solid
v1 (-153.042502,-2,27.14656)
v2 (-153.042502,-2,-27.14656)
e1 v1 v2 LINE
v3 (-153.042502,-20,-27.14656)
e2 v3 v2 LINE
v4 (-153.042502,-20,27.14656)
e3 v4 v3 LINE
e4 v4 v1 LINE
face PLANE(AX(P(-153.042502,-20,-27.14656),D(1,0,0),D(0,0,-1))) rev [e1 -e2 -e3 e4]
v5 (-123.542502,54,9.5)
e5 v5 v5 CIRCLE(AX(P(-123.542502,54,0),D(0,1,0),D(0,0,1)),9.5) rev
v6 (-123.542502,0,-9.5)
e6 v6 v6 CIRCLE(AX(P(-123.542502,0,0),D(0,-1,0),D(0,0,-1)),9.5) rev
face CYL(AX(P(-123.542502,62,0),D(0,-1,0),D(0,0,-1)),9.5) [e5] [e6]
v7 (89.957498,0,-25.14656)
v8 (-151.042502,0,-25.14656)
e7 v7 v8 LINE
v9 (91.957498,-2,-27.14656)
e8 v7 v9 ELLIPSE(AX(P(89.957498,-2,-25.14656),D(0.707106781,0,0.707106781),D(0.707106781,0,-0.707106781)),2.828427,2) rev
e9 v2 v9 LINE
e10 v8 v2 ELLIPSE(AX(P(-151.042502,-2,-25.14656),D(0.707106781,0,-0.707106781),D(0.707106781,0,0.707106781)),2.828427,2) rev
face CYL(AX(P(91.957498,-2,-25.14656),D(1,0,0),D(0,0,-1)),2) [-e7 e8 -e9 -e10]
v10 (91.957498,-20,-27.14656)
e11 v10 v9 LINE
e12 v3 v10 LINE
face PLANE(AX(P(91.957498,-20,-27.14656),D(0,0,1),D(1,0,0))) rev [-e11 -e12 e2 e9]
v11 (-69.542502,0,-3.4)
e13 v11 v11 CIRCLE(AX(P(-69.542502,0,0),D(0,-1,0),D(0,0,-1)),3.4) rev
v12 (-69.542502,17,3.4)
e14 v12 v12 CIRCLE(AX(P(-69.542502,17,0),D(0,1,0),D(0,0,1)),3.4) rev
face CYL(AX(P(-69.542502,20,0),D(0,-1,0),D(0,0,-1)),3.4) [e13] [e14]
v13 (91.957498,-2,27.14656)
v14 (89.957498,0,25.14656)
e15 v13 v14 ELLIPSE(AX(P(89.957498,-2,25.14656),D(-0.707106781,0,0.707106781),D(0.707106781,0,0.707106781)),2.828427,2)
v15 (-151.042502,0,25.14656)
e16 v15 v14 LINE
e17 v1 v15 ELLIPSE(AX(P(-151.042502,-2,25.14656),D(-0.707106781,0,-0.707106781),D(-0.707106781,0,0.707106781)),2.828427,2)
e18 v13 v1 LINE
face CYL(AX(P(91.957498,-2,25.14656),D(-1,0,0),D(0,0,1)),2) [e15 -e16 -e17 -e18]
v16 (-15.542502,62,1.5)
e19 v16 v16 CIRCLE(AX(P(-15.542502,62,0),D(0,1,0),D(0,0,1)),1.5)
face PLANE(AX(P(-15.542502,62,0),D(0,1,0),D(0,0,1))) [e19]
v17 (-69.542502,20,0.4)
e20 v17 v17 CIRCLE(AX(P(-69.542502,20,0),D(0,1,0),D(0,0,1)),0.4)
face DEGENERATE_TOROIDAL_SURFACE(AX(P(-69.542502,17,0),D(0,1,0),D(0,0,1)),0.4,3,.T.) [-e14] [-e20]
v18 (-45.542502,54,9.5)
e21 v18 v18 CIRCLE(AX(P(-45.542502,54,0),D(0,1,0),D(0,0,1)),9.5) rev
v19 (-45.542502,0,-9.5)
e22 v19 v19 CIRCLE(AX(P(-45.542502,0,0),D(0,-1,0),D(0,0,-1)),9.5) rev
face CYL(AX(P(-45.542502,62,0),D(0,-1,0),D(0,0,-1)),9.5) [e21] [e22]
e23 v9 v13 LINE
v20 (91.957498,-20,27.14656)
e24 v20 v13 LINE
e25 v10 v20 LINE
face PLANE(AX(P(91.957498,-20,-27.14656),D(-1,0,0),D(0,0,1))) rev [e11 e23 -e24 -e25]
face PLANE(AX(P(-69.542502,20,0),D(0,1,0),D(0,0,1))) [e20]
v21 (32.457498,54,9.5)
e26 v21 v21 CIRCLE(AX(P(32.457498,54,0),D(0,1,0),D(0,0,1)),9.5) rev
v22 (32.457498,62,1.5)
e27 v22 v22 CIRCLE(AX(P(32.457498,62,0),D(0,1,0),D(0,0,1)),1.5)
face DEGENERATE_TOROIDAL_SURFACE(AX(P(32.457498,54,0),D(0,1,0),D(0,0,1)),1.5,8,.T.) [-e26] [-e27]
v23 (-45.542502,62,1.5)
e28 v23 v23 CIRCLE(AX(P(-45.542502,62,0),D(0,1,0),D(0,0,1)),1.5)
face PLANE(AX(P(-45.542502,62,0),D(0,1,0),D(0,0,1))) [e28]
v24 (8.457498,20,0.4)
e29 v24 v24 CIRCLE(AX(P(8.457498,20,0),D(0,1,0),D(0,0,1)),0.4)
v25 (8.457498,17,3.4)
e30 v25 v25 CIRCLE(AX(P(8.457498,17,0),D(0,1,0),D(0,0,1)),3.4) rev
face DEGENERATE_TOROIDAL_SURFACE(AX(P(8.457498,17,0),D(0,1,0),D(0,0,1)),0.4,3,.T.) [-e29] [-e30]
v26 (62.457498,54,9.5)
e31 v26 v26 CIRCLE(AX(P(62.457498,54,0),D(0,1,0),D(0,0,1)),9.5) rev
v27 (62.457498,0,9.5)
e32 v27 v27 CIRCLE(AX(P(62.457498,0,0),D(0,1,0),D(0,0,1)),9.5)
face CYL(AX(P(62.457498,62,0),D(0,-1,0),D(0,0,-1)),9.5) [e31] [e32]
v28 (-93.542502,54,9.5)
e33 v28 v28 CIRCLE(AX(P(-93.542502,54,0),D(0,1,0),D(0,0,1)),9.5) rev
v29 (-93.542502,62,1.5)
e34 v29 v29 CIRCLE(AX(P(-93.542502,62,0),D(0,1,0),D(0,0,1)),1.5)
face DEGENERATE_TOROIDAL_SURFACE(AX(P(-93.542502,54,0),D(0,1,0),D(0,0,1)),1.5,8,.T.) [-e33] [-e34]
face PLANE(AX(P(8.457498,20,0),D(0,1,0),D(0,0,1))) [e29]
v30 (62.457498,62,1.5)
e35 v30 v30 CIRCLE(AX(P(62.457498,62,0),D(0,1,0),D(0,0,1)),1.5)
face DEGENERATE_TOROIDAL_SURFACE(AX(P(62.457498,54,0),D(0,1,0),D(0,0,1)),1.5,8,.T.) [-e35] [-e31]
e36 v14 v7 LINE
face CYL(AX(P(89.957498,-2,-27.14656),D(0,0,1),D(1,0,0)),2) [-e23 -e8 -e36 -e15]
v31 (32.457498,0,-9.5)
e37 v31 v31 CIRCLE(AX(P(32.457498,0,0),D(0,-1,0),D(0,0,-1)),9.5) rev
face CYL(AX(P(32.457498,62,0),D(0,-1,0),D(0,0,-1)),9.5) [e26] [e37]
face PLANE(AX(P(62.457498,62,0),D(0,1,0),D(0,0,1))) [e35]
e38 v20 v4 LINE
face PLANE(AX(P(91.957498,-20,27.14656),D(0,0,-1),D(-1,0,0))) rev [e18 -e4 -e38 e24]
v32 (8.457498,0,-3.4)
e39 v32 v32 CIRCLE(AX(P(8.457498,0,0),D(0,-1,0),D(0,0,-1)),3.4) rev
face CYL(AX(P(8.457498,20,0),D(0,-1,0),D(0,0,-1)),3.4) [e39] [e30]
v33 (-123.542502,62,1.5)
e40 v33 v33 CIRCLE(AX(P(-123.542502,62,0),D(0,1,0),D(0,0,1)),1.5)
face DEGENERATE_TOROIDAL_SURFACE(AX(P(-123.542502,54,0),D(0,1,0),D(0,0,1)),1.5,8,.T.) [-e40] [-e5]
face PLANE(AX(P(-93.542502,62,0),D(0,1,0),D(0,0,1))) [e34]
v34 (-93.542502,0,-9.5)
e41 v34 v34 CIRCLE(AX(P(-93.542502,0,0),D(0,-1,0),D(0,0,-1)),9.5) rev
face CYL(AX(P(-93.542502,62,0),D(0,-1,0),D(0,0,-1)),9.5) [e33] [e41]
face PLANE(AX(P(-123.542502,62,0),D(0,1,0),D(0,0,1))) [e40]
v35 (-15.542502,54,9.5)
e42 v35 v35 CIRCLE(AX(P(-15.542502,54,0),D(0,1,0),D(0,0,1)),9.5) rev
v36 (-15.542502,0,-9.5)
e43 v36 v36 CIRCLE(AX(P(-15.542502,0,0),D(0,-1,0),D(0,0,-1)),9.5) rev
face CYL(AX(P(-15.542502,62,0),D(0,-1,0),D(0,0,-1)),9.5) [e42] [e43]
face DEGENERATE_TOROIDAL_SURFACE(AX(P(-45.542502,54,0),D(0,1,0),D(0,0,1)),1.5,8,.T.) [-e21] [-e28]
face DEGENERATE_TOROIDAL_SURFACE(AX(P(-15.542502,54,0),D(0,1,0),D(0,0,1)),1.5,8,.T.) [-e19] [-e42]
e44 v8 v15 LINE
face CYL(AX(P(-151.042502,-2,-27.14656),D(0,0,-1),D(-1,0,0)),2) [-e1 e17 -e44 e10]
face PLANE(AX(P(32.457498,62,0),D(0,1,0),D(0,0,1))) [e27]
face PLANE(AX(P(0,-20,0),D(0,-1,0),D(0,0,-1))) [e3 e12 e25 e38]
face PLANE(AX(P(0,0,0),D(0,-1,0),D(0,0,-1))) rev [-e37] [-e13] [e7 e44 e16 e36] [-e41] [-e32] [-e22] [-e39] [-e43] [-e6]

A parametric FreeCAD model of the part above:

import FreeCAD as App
import Part
import Sketcher
from FreeCAD import Vector


def edges_at(feature, points):
    """Names of the edges that pass closest to the given points."""
    edges = feature.Shape.Edges
    near = lambda p: min(range(len(edges)), key=lambda i: edges[i].distToShape(Part.Vertex(*p))[0])
    return sorted({f"Edge{near(p) + 1}" for p in points})

doc = App.newDocument("Part")
body = doc.addObject("PartDesign::Body", "Body")

# Sketch on XZ plane
sketch1 = body.newObject("Sketcher::SketchObject", "Sketch")
sketch1.AttachmentSupport = (doc.getObject("XZ_Plane"), [""])
sketch1.MapMode = "FlatFace"
sketch1.addGeometry(Part.Circle(Vector(32.457498, 0, 0), Vector(0, 0, 1), 9.5), False)
sketch1.addConstraint(Sketcher.Constraint("PointOnObject", 0, 3, -1))
sketch1.addConstraint(Sketcher.Constraint("Diameter", 0, 19.0))
sketch1.addConstraint(Sketcher.Constraint("DistanceX", -1, 1, 0, 3, 32.457498))
pad1 = body.newObject("PartDesign::Pad", "Pad")
pad1.Profile = sketch1
pad1.Length = 62
pad1.Reversed = True
body2 = doc.addObject("PartDesign::Body", "Body001")

# Sketch on XZ plane
sketch2 = body2.newObject("Sketcher::SketchObject", "Sketch001")
sketch2.AttachmentSupport = (doc.getObject("XZ_Plane001"), [""])
sketch2.MapMode = "FlatFace"
sketch2.addGeometry(Part.Circle(Vector(62.457498, 0, 0), Vector(0, 0, 1), 9.5), False)
sketch2.addConstraint(Sketcher.Constraint("PointOnObject", 0, 3, -1))
sketch2.addConstraint(Sketcher.Constraint("Diameter", 0, 19.0))
sketch2.addConstraint(Sketcher.Constraint("DistanceX", -1, 1, 0, 3, 62.457498))
pad2 = body2.newObject("PartDesign::Pad", "Pad001")
pad2.Profile = sketch2
pad2.Length = 62
pad2.Reversed = True
body3 = doc.addObject("PartDesign::Body", "Body002")

# Sketch on XZ plane
sketch3 = body3.newObject("Sketcher::SketchObject", "Sketch002")
sketch3.AttachmentSupport = (doc.getObject("XZ_Plane002"), [""])
sketch3.MapMode = "FlatFace"
sketch3.addGeometry(Part.Circle(Vector(-123.542502, 0, 0), Vector(0, 0, 1), 9.5), False)
sketch3.addConstraint(Sketcher.Constraint("PointOnObject", 0, 3, -1))
sketch3.addConstraint(Sketcher.Constraint("Diameter", 0, 19.0))
sketch3.addConstraint(Sketcher.Constraint("DistanceX", 0, 3, -1, 1, 123.542502))
pad3 = body3.newObject("PartDesign::Pad", "Pad002")
pad3.Profile = sketch3
pad3.Length = 62
pad3.Reversed = True
body4 = doc.addObject("PartDesign::Body", "Body003")

# Sketch on XZ plane
sketch4 = body4.newObject("Sketcher::SketchObject", "Sketch003")
sketch4.AttachmentSupport = (doc.getObject("XZ_Plane003"), [""])
sketch4.MapMode = "FlatFace"
sketch4.addGeometry(Part.Circle(Vector(-93.542502, 0, 0), Vector(0, 0, 1), 9.5), False)
sketch4.addConstraint(Sketcher.Constraint("PointOnObject", 0, 3, -1))
sketch4.addConstraint(Sketcher.Constraint("Diameter", 0, 19.0))
sketch4.addConstraint(Sketcher.Constraint("DistanceX", 0, 3, -1, 1, 93.542502))
pad4 = body4.newObject("PartDesign::Pad", "Pad003")
pad4.Profile = sketch4
pad4.Length = 62
pad4.Reversed = True
body5 = doc.addObject("PartDesign::Body", "Body004")

# Sketch on XZ plane
sketch5 = body5.newObject("Sketcher::SketchObject", "Sketch004")
sketch5.AttachmentSupport = (doc.getObject("XZ_Plane004"), [""])
sketch5.MapMode = "FlatFace"
sketch5.addGeometry(Part.Circle(Vector(-45.542502, 0, 0), Vector(0, 0, 1), 9.5), False)
sketch5.addConstraint(Sketcher.Constraint("PointOnObject", 0, 3, -1))
sketch5.addConstraint(Sketcher.Constraint("Diameter", 0, 19.0))
sketch5.addConstraint(Sketcher.Constraint("DistanceX", 0, 3, -1, 1, 45.542502))
pad5 = body5.newObject("PartDesign::Pad", "Pad004")
pad5.Profile = sketch5
pad5.Length = 62
pad5.Reversed = True
body6 = doc.addObject("PartDesign::Body", "Body005")

# Sketch on XZ plane
sketch6 = body6.newObject("Sketcher::SketchObject", "Sketch005")
sketch6.AttachmentSupport = (doc.getObject("XZ_Plane005"), [""])
sketch6.MapMode = "FlatFace"
sketch6.addGeometry(Part.Circle(Vector(-15.542502, 0, 0), Vector(0, 0, 1), 9.5), False)
sketch6.addConstraint(Sketcher.Constraint("PointOnObject", 0, 3, -1))
sketch6.addConstraint(Sketcher.Constraint("Diameter", 0, 19.0))
sketch6.addConstraint(Sketcher.Constraint("DistanceX", 0, 3, -1, 1, 15.542502))
pad6 = body6.newObject("PartDesign::Pad", "Pad005")
pad6.Profile = sketch6
pad6.Length = 62
pad6.Reversed = True
body.AllowCompound = True
doc.recompute()

boolean = body.newObject("PartDesign::Boolean", "Boolean")
boolean.Type = "Fuse"
boolean.addObjects([body2])
doc.recompute()

boolean2 = body.newObject("PartDesign::Boolean", "Boolean001")
boolean2.Type = "Fuse"
boolean2.addObjects([body3])
doc.recompute()

boolean3 = body.newObject("PartDesign::Boolean", "Boolean002")
boolean3.Type = "Fuse"
boolean3.addObjects([body4])
doc.recompute()

boolean4 = body.newObject("PartDesign::Boolean", "Boolean003")
boolean4.Type = "Fuse"
boolean4.addObjects([body5])
doc.recompute()

boolean5 = body.newObject("PartDesign::Boolean", "Boolean004")
boolean5.Type = "Fuse"
boolean5.addObjects([body6])

# Sketch on XZ plane
sketch7 = body.newObject("Sketcher::SketchObject", "Sketch006")
sketch7.AttachmentSupport = (doc.getObject("XZ_Plane"), [""])
sketch7.MapMode = "FlatFace"
sketch7.addGeometry(Part.Circle(Vector(32.457498, 0, 0), Vector(0, 0, 1), 9.5), False)
sketch7.addGeometry(Part.Circle(Vector(62.457498, 0, 0), Vector(0, 0, 1), 9.5), False)
sketch7.addGeometry(Part.Circle(Vector(-123.542502, 0, 0), Vector(0, 0, 1), 9.5), False)
sketch7.addGeometry(Part.Circle(Vector(-93.542502, 0, 0), Vector(0, 0, 1), 9.5), False)
sketch7.addGeometry(Part.Circle(Vector(-45.542502, 0, 0), Vector(0, 0, 1), 9.5), False)
sketch7.addGeometry(Part.Circle(Vector(-15.542502, 0, 0), Vector(0, 0, 1), 9.5), False)
sketch7.addGeometry(Part.Circle(Vector(-69.542502, 0, 0), Vector(0, 0, 1), 3.4), False)
sketch7.addGeometry(Part.Circle(Vector(8.457498, 0, 0), Vector(0, 0, 1), 3.4), False)
sketch7.addConstraint(Sketcher.Constraint("Equal", 0, 1))
sketch7.addConstraint(Sketcher.Constraint("Equal", 1, 2))
sketch7.addConstraint(Sketcher.Constraint("Equal", 2, 3))
sketch7.addConstraint(Sketcher.Constraint("Equal", 3, 4))
sketch7.addConstraint(Sketcher.Constraint("Equal", 4, 5))
sketch7.addConstraint(Sketcher.Constraint("Equal", 6, 7))
sketch7.addConstraint(Sketcher.Constraint("PointOnObject", 0, 3, -1))
sketch7.addConstraint(Sketcher.Constraint("PointOnObject", 1, 3, -1))
sketch7.addConstraint(Sketcher.Constraint("PointOnObject", 2, 3, -1))
sketch7.addConstraint(Sketcher.Constraint("PointOnObject", 3, 3, -1))
sketch7.addConstraint(Sketcher.Constraint("PointOnObject", 4, 3, -1))
sketch7.addConstraint(Sketcher.Constraint("PointOnObject", 5, 3, -1))
sketch7.addConstraint(Sketcher.Constraint("PointOnObject", 6, 3, -1))
sketch7.addConstraint(Sketcher.Constraint("PointOnObject", 7, 3, -1))
sketch7.addConstraint(Sketcher.Constraint("Diameter", 0, 19.0))
sketch7.addConstraint(Sketcher.Constraint("Diameter", 6, 6.8))
sketch7.addConstraint(Sketcher.Constraint("DistanceX", 0, 3, 1, 3, 30.0))
sketch7.addConstraint(Sketcher.Constraint("DistanceX", 2, 3, 0, 3, 156.0))
sketch7.addConstraint(Sketcher.Constraint("DistanceX", 2, 3, 3, 3, 30.0))
sketch7.addConstraint(Sketcher.Constraint("DistanceX", 3, 3, 4, 3, 48.0))
sketch7.addConstraint(Sketcher.Constraint("DistanceX", 4, 3, 5, 3, 30.0))
sketch7.addConstraint(Sketcher.Constraint("DistanceX", 6, 3, 4, 3, 24.0))
sketch7.addConstraint(Sketcher.Constraint("DistanceX", 7, 3, 0, 3, 24.0))
sketch7.addConstraint(Sketcher.Constraint("DistanceX", -1, 1, 0, 3, 32.457498))
pad7 = body.newObject("PartDesign::Pad", "Pad006")
pad7.Profile = sketch7
pad7.Length = 20
pad7.Reversed = True
doc.recompute()

fillet = body.newObject("PartDesign::Fillet", "Fillet")
fillet.Base = (pad7, edges_at(pad7, [(-123.543, 62, -9.5)]))
fillet.Radius = 8
doc.recompute()

fillet2 = body.newObject("PartDesign::Fillet", "Fillet001")
fillet2.Base = (fillet, edges_at(fillet, [(-93.543, 62, -9.5)]))
fillet2.Radius = 8
doc.recompute()

fillet3 = body.newObject("PartDesign::Fillet", "Fillet002")
fillet3.Base = (fillet2, edges_at(fillet2, [(-45.543, 62, -9.5)]))
fillet3.Radius = 8
doc.recompute()

fillet4 = body.newObject("PartDesign::Fillet", "Fillet003")
fillet4.Base = (fillet3, edges_at(fillet3, [(-15.543, 62, -9.5)]))
fillet4.Radius = 8
doc.recompute()

fillet5 = body.newObject("PartDesign::Fillet", "Fillet004")
fillet5.Base = (fillet4, edges_at(fillet4, [(32.457, 62, -9.5)]))
fillet5.Radius = 8
doc.recompute()

fillet6 = body.newObject("PartDesign::Fillet", "Fillet005")
fillet6.Base = (fillet5, edges_at(fillet5, [(62.457, 62, -9.5)]))
fillet6.Radius = 8
doc.recompute()

fillet7 = body.newObject("PartDesign::Fillet", "Fillet006")
fillet7.Base = (fillet6, edges_at(fillet6, [(-69.543, 20, -3.4)]))
fillet7.Radius = 3
doc.recompute()

fillet8 = body.newObject("PartDesign::Fillet", "Fillet007")
fillet8.Base = (fillet7, edges_at(fillet7, [(8.457, 20, -3.4)]))
fillet8.Radius = 3

# Sketch on XZ plane
sketch8 = body.newObject("Sketcher::SketchObject", "Sketch007")
sketch8.AttachmentSupport = (doc.getObject("XZ_Plane"), [""])
sketch8.MapMode = "FlatFace"
sketch8.addGeometry(Part.LineSegment(Vector(91.957498, -27.14656, 0), Vector(91.957498, 27.14656, 0)), False)
sketch8.addGeometry(Part.LineSegment(Vector(91.957498, 27.14656, 0), Vector(-153.042502, 27.14656, 0)), False)
sketch8.addGeometry(Part.LineSegment(Vector(-153.042502, 27.14656, 0), Vector(-153.042502, -27.14656, 0)), False)
sketch8.addGeometry(Part.LineSegment(Vector(-153.042502, -27.14656, 0), Vector(91.957498, -27.14656, 0)), False)
sketch8.addConstraint(Sketcher.Constraint("Coincident", 0, 2, 1, 1))
sketch8.addConstraint(Sketcher.Constraint("Coincident", 1, 2, 2, 1))
sketch8.addConstraint(Sketcher.Constraint("Coincident", 2, 2, 3, 1))
sketch8.addConstraint(Sketcher.Constraint("Coincident", 3, 2, 0, 1))
sketch8.addConstraint(Sketcher.Constraint("Vertical", 0))
sketch8.addConstraint(Sketcher.Constraint("Horizontal", 1))
sketch8.addConstraint(Sketcher.Constraint("Vertical", 2))
sketch8.addConstraint(Sketcher.Constraint("Horizontal", 3))
sketch8.addConstraint(Sketcher.Constraint("DistanceX", 1, 2, 1, 1, 245.0))
sketch8.addConstraint(Sketcher.Constraint("DistanceY", 0, 1, 0, 2, 54.293121))
sketch8.addConstraint(Sketcher.Constraint("DistanceY", -1, 1, 0, 2, 27.14656))
sketch8.addConstraint(Sketcher.Constraint("DistanceX", -1, 1, 0, 2, 91.957498))
pad8 = body.newObject("PartDesign::Pad", "Pad007")
pad8.Profile = sketch8
pad8.Length = 20
doc.recompute()

fillet9 = body.newObject("PartDesign::Fillet", "Fillet008")
fillet9.Base = (pad8, edges_at(pad8, [
    (-153.043, 0, 0),
    (-30.543, 0, -27.147),
    (91.957, 0, 0),
    (-30.543, 0, 27.147),
]))
fillet9.Radius = 2

doc.recompute()
